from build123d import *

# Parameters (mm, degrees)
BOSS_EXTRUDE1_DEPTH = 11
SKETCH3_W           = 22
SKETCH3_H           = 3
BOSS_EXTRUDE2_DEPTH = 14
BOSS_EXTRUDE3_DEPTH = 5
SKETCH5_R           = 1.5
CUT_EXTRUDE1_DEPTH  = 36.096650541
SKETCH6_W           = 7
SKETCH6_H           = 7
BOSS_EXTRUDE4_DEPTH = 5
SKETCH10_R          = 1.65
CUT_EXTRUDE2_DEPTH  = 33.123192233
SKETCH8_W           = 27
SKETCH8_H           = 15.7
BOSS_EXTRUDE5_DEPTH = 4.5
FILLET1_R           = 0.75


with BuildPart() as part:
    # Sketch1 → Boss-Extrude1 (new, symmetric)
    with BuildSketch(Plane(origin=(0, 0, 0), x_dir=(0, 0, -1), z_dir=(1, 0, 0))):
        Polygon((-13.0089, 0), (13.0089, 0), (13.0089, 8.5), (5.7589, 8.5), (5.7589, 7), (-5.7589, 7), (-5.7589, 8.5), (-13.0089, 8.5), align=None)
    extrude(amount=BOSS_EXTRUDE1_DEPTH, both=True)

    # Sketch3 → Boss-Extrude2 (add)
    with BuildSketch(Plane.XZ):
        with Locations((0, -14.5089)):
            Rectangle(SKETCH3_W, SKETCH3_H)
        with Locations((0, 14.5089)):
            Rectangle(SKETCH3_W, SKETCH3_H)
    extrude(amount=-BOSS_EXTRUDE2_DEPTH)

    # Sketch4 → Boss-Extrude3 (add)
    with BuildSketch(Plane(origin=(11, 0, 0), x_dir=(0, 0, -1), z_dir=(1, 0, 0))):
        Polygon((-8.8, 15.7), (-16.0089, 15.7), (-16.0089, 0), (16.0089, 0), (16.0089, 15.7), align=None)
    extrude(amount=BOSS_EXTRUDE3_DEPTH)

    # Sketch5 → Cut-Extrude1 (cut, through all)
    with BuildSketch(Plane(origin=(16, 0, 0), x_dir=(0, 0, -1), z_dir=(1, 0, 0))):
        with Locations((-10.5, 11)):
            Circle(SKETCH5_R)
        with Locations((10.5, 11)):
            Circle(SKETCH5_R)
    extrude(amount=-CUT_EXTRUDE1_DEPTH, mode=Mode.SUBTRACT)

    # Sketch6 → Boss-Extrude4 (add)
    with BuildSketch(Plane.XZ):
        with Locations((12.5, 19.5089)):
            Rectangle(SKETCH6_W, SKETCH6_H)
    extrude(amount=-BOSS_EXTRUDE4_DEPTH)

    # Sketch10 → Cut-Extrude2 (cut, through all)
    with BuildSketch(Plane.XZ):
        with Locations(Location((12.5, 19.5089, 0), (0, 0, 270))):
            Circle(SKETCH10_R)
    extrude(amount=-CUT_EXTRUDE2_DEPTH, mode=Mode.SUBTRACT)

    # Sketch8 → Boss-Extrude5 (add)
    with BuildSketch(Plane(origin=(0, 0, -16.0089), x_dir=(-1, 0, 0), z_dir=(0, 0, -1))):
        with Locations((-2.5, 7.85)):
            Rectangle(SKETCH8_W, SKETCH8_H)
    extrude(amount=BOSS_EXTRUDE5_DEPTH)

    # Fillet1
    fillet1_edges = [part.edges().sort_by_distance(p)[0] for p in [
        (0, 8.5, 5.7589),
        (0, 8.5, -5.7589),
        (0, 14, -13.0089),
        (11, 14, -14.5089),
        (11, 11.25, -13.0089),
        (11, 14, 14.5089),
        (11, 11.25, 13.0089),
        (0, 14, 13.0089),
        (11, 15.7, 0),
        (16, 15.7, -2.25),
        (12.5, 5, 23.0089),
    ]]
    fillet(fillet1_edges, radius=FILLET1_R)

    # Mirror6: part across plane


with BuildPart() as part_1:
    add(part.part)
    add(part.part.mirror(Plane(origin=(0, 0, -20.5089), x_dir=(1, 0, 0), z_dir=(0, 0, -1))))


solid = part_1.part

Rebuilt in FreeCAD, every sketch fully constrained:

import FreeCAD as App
import Part
import Sketcher
from FreeCAD import Vector
Q = App.Units.Quantity


def edges_at(feature, points):
    """Names of the edges that pass closest to the given points."""
    edges = feature.Shape.Edges
    near = lambda p: min(range(len(edges)), key=lambda i: edges[i].distToShape(Part.Vertex(*p))[0])
    return sorted({f"Edge{near(p) + 1}" for p in points})

doc = App.newDocument("Part")
body = doc.addObject("PartDesign::Body", "Body")

sketch1 = body.newObject("Sketcher::SketchObject", "Sketch")
sketch1.AttachmentSupport = (doc.getObject("YZ_Plane"), [""])
sketch1.MapMode = "FlatFace"
sketch1.addGeometry([
    Part.LineSegment(Vector(0, 13, 0), Vector(0, -13, 0)),
    Part.LineSegment(Vector(0, -13, 0), Vector(8.5, -13, 0)),
    Part.LineSegment(Vector(8.5, -13, 0), Vector(8.5, -5.8, 0)),
    Part.LineSegment(Vector(8.5, -5.8, 0), Vector(7, -5.8, 0)),
    Part.LineSegment(Vector(7, -5.8, 0), Vector(7, 5.8, 0)),
    Part.LineSegment(Vector(7, 5.8, 0), Vector(8.5, 5.8, 0)),
    Part.LineSegment(Vector(8.5, 5.8, 0), Vector(8.5, 13, 0)),
    Part.LineSegment(Vector(8.5, 13, 0), Vector(0, 13, 0)),
], False)
sketch1.addConstraint([
    Sketcher.Constraint("Coincident", 0, 2, 1, 1),
    Sketcher.Constraint("Coincident", 1, 2, 2, 1),
    Sketcher.Constraint("Coincident", 2, 2, 3, 1),
    Sketcher.Constraint("Coincident", 3, 2, 4, 1),
    Sketcher.Constraint("Coincident", 4, 2, 5, 1),
    Sketcher.Constraint("Coincident", 5, 2, 6, 1),
    Sketcher.Constraint("Coincident", 6, 2, 7, 1),
    Sketcher.Constraint("Coincident", 7, 2, 0, 1),
    Sketcher.Constraint("Vertical", 0),
    Sketcher.Constraint("Horizontal", 1),
    Sketcher.Constraint("Vertical", 2),
    Sketcher.Constraint("Horizontal", 3),
    Sketcher.Constraint("Vertical", 4),
    Sketcher.Constraint("Horizontal", 5),
    Sketcher.Constraint("Vertical", 6),
    Sketcher.Constraint("Horizontal", 7),
    Sketcher.Constraint("Symmetric", 0, 2, 7, 2, -1, 1),
    Sketcher.Constraint("Symmetric", 2, 2, 5, 2, -1),
    Sketcher.Constraint("DistanceX", 1, 1, 1, 2, Q("8.5 mm")),
    Sketcher.Constraint("DistanceX", 3, 2, 3, 1, Q("1.5 mm")),
    Sketcher.Constraint("DistanceY", 2, 1, 2, 2, Q("7.25 mm")),
    Sketcher.Constraint("DistanceY", 0, 2, 0, 1, Q("26.0178 mm")),
])
pad1 = body.newObject("PartDesign::Pad", "Pad")
pad1.Profile = sketch1
pad1.Length = 22
pad1.Midplane = True

sketch2 = body.newObject("Sketcher::SketchObject", "Sketch001")
sketch2.AttachmentSupport = (doc.getObject("XZ_Plane"), [""])
sketch2.MapMode = "FlatFace"
sketch2.addGeometry([
    Part.LineSegment(Vector(-11, -13, 0), Vector(-11, -16, 0)),
    Part.LineSegment(Vector(-11, -16, 0), Vector(11, -16, 0)),
    Part.LineSegment(Vector(11, -16, 0), Vector(11, -13, 0)),
    Part.LineSegment(Vector(11, -13, 0), Vector(-11, -13, 0)),
    Part.LineSegment(Vector(-11, 16, 0), Vector(-11, 13, 0)),
    Part.LineSegment(Vector(-11, 13, 0), Vector(11, 13, 0)),
    Part.LineSegment(Vector(11, 13, 0), Vector(11, 16, 0)),
    Part.LineSegment(Vector(11, 16, 0), Vector(-11, 16, 0)),
], False)
sketch2.addConstraint([
    Sketcher.Constraint("Coincident", 0, 2, 1, 1),
    Sketcher.Constraint("Coincident", 1, 2, 2, 1),
    Sketcher.Constraint("Coincident", 2, 2, 3, 1),
    Sketcher.Constraint("Coincident", 3, 2, 0, 1),
    Sketcher.Constraint("Coincident", 4, 2, 5, 1),
    Sketcher.Constraint("Coincident", 5, 2, 6, 1),
    Sketcher.Constraint("Coincident", 6, 2, 7, 1),
    Sketcher.Constraint("Coincident", 7, 2, 4, 1),
    Sketcher.Constraint("Vertical", 0),
    Sketcher.Constraint("Horizontal", 1),
    Sketcher.Constraint("Vertical", 2),
    Sketcher.Constraint("Horizontal", 3),
    Sketcher.Constraint("Vertical", 4),
    Sketcher.Constraint("Horizontal", 5),
    Sketcher.Constraint("Vertical", 6),
    Sketcher.Constraint("Horizontal", 7),
    Sketcher.Constraint("Symmetric", 2, 2, 4, 2, -1, 1),
    Sketcher.Constraint("Symmetric", 0, 2, 6, 2, -1, 1),
    Sketcher.Constraint("Vertical", 3, 2, 4, 2),
    Sketcher.Constraint("DistanceX", 1, 1, 1, 2, Q("22 mm")),
    Sketcher.Constraint("DistanceY", 0, 2, 0, 1, Q("3 mm")),
    Sketcher.Constraint("DistanceY", 0, 2, -1, 1, Q("16.0089 mm")),
])
pad2 = body.newObject("PartDesign::Pad", "Pad001")
pad2.Profile = sketch2
pad2.Length = 14
pad2.Reversed = True

sketch3 = body.newObject("Sketcher::SketchObject", "Sketch002")
sketch3.AttachmentSupport = (doc.getObject("YZ_Plane"), [""])
sketch3.MapMode = "FlatFace"
sketch3.AttachmentOffset = App.Placement(Vector(0, 0, 11), App.Rotation())
sketch3.addGeometry([
    Part.LineSegment(Vector(16, 16, 0), Vector(0, 16, 0)),
    Part.LineSegment(Vector(0, 16, 0), Vector(0, -16, 0)),
    Part.LineSegment(Vector(0, -16, 0), Vector(16, -16, 0)),
    Part.LineSegment(Vector(16, -16, 0), Vector(16, 16, 0)),
], False)
sketch3.addConstraint([
    Sketcher.Constraint("Coincident", 0, 2, 1, 1),
    Sketcher.Constraint("Coincident", 1, 2, 2, 1),
    Sketcher.Constraint("Coincident", 2, 2, 3, 1),
    Sketcher.Constraint("Coincident", 3, 2, 0, 1),
    Sketcher.Constraint("Horizontal", 0),
    Sketcher.Constraint("Vertical", 1),
    Sketcher.Constraint("Horizontal", 2),
    Sketcher.Constraint("Vertical", 3),
    Sketcher.Constraint("Symmetric", 0, 2, 1, 2, -1, 1),
    Sketcher.Constraint("DistanceX", 0, 2, 0, 1, Q("15.7 mm")),
    Sketcher.Constraint("DistanceY", 1, 2, 1, 1, Q("32.0178 mm")),
])
pad3 = body.newObject("PartDesign::Pad", "Pad002")
pad3.Profile = sketch3
pad3.Length = 5

sketch4 = body.newObject("Sketcher::SketchObject", "Sketch003")
sketch4.AttachmentSupport = (doc.getObject("YZ_Plane"), [""])
sketch4.MapMode = "FlatFace"
sketch4.AttachmentOffset = App.Placement(Vector(0, 0, 16), App.Rotation())
sketch4.addGeometry([
    Part.Circle(Vector(11, 10.5, 0), Vector(0, 0, 1), 1.5),
    Part.Circle(Vector(11, -10.5, 0), Vector(0, 0, 1), 1.5),
], False)
sketch4.addConstraint([
    Sketcher.Constraint("Equal", 0, 1),
    Sketcher.Constraint("Symmetric", 0, 3, 1, 3, -1),
    Sketcher.Constraint("Diameter", 0, Q("3 mm")),
    Sketcher.Constraint("DistanceX", -1, 1, 0, 3, Q("11 mm")),
    Sketcher.Constraint("DistanceY", 1, 3, 0, 3, Q("21 mm")),
])
pocket1 = body.newObject("PartDesign::Pocket", "Pocket")
pocket1.Profile = sketch4
pocket1.Type = "ThroughAll"

sketch5 = body.newObject("Sketcher::SketchObject", "Sketch004")
sketch5.AttachmentSupport = (doc.getObject("XZ_Plane"), [""])
sketch5.MapMode = "FlatFace"
sketch5.addGeometry([
    Part.LineSegment(Vector(9, 23, 0), Vector(9, 16, 0)),
    Part.LineSegment(Vector(9, 16, 0), Vector(16, 16, 0)),
    Part.LineSegment(Vector(16, 16, 0), Vector(16, 23, 0)),
    Part.LineSegment(Vector(16, 23, 0), Vector(9, 23, 0)),
], False)
sketch5.addConstraint([
    Sketcher.Constraint("Coincident", 0, 2, 1, 1),
    Sketcher.Constraint("Coincident", 1, 2, 2, 1),
    Sketcher.Constraint("Coincident", 2, 2, 3, 1),
    Sketcher.Constraint("Coincident", 3, 2, 0, 1),
    Sketcher.Constraint("Vertical", 0),
    Sketcher.Constraint("Horizontal", 1),
    Sketcher.Constraint("Vertical", 2),
    Sketcher.Constraint("Horizontal", 3),
    Sketcher.Constraint("Equal", 3, 0),
    Sketcher.Constraint("DistanceX", 1, 1, 1, 2, Q("7 mm")),
    Sketcher.Constraint("DistanceX", -1, 1, 0, 2, Q("9 mm")),
    Sketcher.Constraint("DistanceY", -1, 1, 0, 2, Q("16.0089 mm")),
])
pad4 = body.newObject("PartDesign::Pad", "Pad003")
pad4.Profile = sketch5
pad4.Length = 5
pad4.Reversed = True

sketch6 = body.newObject("Sketcher::SketchObject", "Sketch005")
sketch6.AttachmentSupport = (doc.getObject("XZ_Plane"), [""])
sketch6.MapMode = "FlatFace"
sketch6.addGeometry(Part.Circle(Vector(12.5, 19.5, 0), Vector(0, 0, 1), 1.6), False)
sketch6.addConstraint([
    Sketcher.Constraint("Diameter", 0, Q("3.3 mm")),
    Sketcher.Constraint("DistanceX", -1, 1, 0, 3, Q("12.5 mm")),
    Sketcher.Constraint("DistanceY", -1, 1, 0, 3, Q("19.5089 mm")),
])
pocket2 = body.newObject("PartDesign::Pocket", "Pocket001")
pocket2.Profile = sketch6
pocket2.Type = "ThroughAll"

sketch7 = body.newObject("Sketcher::SketchObject", "Sketch006")
sketch7.AttachmentSupport = (doc.getObject("XY_Plane"), [""])
sketch7.MapMode = "FlatFace"
sketch7.AttachmentOffset = App.Placement(Vector(0, 0, -16.0089), App.Rotation())
sketch7.addGeometry([
    Part.LineSegment(Vector(16, 16, 0), Vector(16, 0, 0)),
    Part.LineSegment(Vector(16, 0, 0), Vector(-11, 0, 0)),
    Part.LineSegment(Vector(-11, 0, 0), Vector(-11, 16, 0)),
    Part.LineSegment(Vector(-11, 16, 0), Vector(16, 16, 0)),
], False)
sketch7.addConstraint([
    Sketcher.Constraint("Coincident", 0, 2, 1, 1),
    Sketcher.Constraint("Coincident", 1, 2, 2, 1),
    Sketcher.Constraint("Coincident", 2, 2, 3, 1),
    Sketcher.Constraint("Coincident", 3, 2, 0, 1),
    Sketcher.Constraint("Vertical", 0),
    Sketcher.Constraint("Horizontal", 1),
    Sketcher.Constraint("Vertical", 2),
    Sketcher.Constraint("Horizontal", 3),
    Sketcher.Constraint("PointOnObject", 0, 2, -1),
    Sketcher.Constraint("DistanceX", 1, 2, 1, 1, Q("27 mm")),
    Sketcher.Constraint("DistanceY", 0, 2, 0, 1, Q("15.7 mm")),
    Sketcher.Constraint("DistanceX", -1, 1, 0, 2, Q("16 mm")),
])
pad5 = body.newObject("PartDesign::Pad", "Pad004")
pad5.Profile = sketch7
pad5.Length = 4.5
pad5.Reversed = True
doc.recompute()

fillet = body.newObject("PartDesign::Fillet", "Fillet")
fillet.Base = (pad5, edges_at(pad5, [
    (0, 8.5, 5.759),
    (0, 8.5, -5.759),
    (0, 14, -13.009),
    (11, 14, -14.509),
    (11, 11.25, -13.009),
    (11, 14, 14.509),
    (11, 11.25, 13.009),
    (0, 14, 13.009),
    (11, 15.7, 0),
    (16, 15.7, -2.25),
    (12.5, 5, 23.009),
]))
fillet.Radius = 0.75
body2 = doc.addObject("PartDesign::Body", "Body001")
doc.recompute()

body2.BaseFeature = body
doc.recompute()

mirroring = doc.addObject("Part::Mirroring", "Mirroring")
mirroring.Source = body
mirroring.Base = Vector(0, 0, -20.5089)
mirroring.Normal = Vector(0, 0, -1)
body3 = doc.addObject("PartDesign::Body", "Body002")
body3.BaseFeature = mirroring
boolean = body2.newObject("PartDesign::Boolean", "Boolean")
boolean.Type = "Fuse"
boolean.addObjects([body3])
doc.recompute()
mirroring.Visibility = False

doc.recompute()
